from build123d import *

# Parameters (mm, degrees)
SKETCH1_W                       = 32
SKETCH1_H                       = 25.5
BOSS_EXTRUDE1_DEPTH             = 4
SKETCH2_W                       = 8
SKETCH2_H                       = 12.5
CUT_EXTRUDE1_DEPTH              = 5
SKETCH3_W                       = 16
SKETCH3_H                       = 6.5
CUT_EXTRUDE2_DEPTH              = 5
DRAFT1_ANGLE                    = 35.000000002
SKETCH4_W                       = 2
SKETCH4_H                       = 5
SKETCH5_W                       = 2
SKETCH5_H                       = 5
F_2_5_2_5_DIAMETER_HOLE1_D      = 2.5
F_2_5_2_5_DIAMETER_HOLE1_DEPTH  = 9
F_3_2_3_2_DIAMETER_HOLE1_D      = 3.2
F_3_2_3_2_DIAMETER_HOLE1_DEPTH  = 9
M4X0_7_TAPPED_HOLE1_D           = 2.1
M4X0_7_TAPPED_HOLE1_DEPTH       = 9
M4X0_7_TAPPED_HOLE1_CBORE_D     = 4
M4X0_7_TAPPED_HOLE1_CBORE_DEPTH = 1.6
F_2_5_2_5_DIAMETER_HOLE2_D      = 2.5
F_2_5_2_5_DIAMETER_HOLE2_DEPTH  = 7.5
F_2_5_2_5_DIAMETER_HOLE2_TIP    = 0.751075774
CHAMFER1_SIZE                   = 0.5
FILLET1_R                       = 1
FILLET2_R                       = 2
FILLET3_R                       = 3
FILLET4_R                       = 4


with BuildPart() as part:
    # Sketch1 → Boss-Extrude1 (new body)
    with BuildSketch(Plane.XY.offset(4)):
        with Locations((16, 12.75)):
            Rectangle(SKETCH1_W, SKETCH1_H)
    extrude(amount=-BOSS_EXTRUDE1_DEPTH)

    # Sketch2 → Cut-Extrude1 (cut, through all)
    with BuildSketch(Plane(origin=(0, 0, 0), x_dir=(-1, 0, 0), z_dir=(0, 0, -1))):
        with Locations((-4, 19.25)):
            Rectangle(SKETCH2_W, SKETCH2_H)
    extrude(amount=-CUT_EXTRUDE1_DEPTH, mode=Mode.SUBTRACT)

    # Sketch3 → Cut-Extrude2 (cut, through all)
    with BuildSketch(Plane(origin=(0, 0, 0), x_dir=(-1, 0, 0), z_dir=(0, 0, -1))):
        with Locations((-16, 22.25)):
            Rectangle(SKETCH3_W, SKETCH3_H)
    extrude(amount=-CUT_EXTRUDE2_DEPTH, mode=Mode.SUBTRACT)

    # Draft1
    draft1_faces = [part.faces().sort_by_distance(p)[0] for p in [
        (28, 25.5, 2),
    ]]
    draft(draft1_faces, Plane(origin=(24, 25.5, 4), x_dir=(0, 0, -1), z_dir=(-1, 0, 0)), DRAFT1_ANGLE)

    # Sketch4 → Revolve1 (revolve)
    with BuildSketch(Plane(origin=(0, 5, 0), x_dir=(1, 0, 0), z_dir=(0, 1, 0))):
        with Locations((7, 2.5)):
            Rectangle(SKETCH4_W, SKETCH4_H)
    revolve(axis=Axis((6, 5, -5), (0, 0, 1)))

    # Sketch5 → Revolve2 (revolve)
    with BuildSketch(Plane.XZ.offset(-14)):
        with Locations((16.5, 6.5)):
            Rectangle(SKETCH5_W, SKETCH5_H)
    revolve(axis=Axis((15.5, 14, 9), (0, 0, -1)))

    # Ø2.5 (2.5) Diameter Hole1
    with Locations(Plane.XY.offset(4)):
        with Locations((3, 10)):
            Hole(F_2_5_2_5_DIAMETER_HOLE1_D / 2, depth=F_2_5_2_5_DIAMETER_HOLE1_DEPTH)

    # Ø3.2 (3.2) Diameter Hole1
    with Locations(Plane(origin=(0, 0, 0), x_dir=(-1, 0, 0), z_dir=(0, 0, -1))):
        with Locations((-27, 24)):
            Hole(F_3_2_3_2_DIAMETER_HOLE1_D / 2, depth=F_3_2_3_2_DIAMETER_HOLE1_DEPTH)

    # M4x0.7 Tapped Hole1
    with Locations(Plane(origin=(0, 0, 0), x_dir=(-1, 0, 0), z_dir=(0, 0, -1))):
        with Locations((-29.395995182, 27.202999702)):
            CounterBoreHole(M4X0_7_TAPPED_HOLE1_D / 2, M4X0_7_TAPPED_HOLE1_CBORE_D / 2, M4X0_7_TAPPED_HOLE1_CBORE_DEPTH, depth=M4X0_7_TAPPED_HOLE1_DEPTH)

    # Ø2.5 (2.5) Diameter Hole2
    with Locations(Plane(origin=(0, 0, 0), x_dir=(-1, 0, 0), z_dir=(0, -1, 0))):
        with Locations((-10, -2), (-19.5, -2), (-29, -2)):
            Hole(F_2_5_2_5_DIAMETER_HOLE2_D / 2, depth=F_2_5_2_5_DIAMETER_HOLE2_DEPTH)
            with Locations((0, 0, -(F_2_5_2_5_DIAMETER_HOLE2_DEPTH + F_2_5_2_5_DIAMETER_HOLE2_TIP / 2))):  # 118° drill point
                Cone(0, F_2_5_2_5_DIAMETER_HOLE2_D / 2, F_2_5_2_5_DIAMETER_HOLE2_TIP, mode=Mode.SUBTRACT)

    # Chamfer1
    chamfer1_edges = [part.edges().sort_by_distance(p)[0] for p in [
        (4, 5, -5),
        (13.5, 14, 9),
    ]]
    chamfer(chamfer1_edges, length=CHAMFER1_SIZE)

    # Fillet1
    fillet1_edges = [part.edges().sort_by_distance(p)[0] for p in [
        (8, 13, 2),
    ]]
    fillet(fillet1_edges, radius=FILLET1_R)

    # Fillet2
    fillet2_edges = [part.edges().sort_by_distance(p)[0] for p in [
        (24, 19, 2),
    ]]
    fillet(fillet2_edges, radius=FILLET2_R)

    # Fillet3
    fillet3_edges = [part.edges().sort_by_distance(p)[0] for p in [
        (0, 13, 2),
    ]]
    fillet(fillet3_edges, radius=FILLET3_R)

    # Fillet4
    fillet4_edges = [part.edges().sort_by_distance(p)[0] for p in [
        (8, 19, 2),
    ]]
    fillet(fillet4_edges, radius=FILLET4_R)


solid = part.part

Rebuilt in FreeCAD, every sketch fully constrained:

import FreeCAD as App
import Part
import Sketcher
from FreeCAD import Vector


def edges_at(feature, points):
    """Names of the edges that pass closest to the given points."""
    edges = feature.Shape.Edges
    near = lambda p: min(range(len(edges)), key=lambda i: edges[i].distToShape(Part.Vertex(*p))[0])
    return sorted({f"Edge{near(p) + 1}" for p in points})


def faces_at(feature, points):
    """Names of the faces that lie closest to the given points."""
    faces = feature.Shape.Faces
    near = lambda p: min(range(len(faces)), key=lambda i: faces[i].distToShape(Part.Vertex(*p))[0])
    return sorted({f"Face{near(p) + 1}" for p in points})

doc = App.newDocument("Part")
body = doc.addObject("PartDesign::Body", "Body")

# Sketch on XY plane
sketch1 = body.newObject("Sketcher::SketchObject", "Sketch")
sketch1.AttachmentSupport = (doc.getObject("XY_Plane"), [""])
sketch1.MapMode = "FlatFace"
sketch1.AttachmentOffset = App.Placement(Vector(0, 0, 4), App.Rotation())
sketch1.addGeometry([
    Part.LineSegment(Vector(0, 25.5, 0), Vector(0, 0, 0)),
    Part.LineSegment(Vector(0, 0, 0), Vector(32, 0, 0)),
    Part.LineSegment(Vector(32, 0, 0), Vector(32, 25.5, 0)),
    Part.LineSegment(Vector(32, 25.5, 0), Vector(0, 25.5, 0)),
], False)
sketch1.addConstraint([
    Sketcher.Constraint("Coincident", 0, 2, 1, 1),
    Sketcher.Constraint("Coincident", 1, 2, 2, 1),
    Sketcher.Constraint("Coincident", 2, 2, 3, 1),
    Sketcher.Constraint("Coincident", 3, 2, 0, 1),
    Sketcher.Constraint("Vertical", 0),
    Sketcher.Constraint("Horizontal", 1),
    Sketcher.Constraint("Vertical", 2),
    Sketcher.Constraint("Horizontal", 3),
    Sketcher.Constraint("Coincident", 0, 2, -1, 1),
    Sketcher.Constraint("DistanceX", 1, 1, 1, 2, 32.0),
    Sketcher.Constraint("DistanceY", 0, 2, 0, 1, 25.5),
])
pad1 = body.newObject("PartDesign::Pad", "Pad")
pad1.Profile = sketch1
pad1.Length = 4
pad1.Reversed = True

# Sketch on XY plane
sketch2 = body.newObject("Sketcher::SketchObject", "Sketch001")
sketch2.AttachmentSupport = (doc.getObject("XY_Plane"), [""])
sketch2.MapMode = "FlatFace"
sketch2.addGeometry([
    Part.LineSegment(Vector(8, 25.5, 0), Vector(8, 13, 0)),
    Part.LineSegment(Vector(8, 13, 0), Vector(0, 13, 0)),
    Part.LineSegment(Vector(0, 13, 0), Vector(0, 25.5, 0)),
    Part.LineSegment(Vector(0, 25.5, 0), Vector(8, 25.5, 0)),
], False)
sketch2.addConstraint([
    Sketcher.Constraint("Coincident", 0, 2, 1, 1),
    Sketcher.Constraint("Coincident", 1, 2, 2, 1),
    Sketcher.Constraint("Coincident", 2, 2, 3, 1),
    Sketcher.Constraint("Coincident", 3, 2, 0, 1),
    Sketcher.Constraint("Vertical", 0),
    Sketcher.Constraint("Horizontal", 1),
    Sketcher.Constraint("Vertical", 2),
    Sketcher.Constraint("Horizontal", 3),
    Sketcher.Constraint("PointOnObject", 1, 2, -2),
    Sketcher.Constraint("DistanceX", 1, 2, 1, 1, 8.0),
    Sketcher.Constraint("DistanceY", 0, 2, 0, 1, 12.5),
    Sketcher.Constraint("DistanceY", -1, 1, 0, 2, 13.0),
])
pocket1 = body.newObject("PartDesign::Pocket", "Pocket")
pocket1.Profile = sketch2
pocket1.Type = "ThroughAll"
pocket1.Reversed = True

# Sketch on XY plane
sketch3 = body.newObject("Sketcher::SketchObject", "Sketch002")
sketch3.AttachmentSupport = (doc.getObject("XY_Plane"), [""])
sketch3.MapMode = "FlatFace"
sketch3.addGeometry([
    Part.LineSegment(Vector(24, 25.5, 0), Vector(24, 19, 0)),
    Part.LineSegment(Vector(24, 19, 0), Vector(8, 19, 0)),
    Part.LineSegment(Vector(8, 19, 0), Vector(8, 25.5, 0)),
    Part.LineSegment(Vector(8, 25.5, 0), Vector(24, 25.5, 0)),
], False)
sketch3.addConstraint([
    Sketcher.Constraint("Coincident", 0, 2, 1, 1),
    Sketcher.Constraint("Coincident", 1, 2, 2, 1),
    Sketcher.Constraint("Coincident", 2, 2, 3, 1),
    Sketcher.Constraint("Coincident", 3, 2, 0, 1),
    Sketcher.Constraint("Vertical", 0),
    Sketcher.Constraint("Horizontal", 1),
    Sketcher.Constraint("Vertical", 2),
    Sketcher.Constraint("Horizontal", 3),
    Sketcher.Constraint("DistanceX", 1, 2, 1, 1, 16.0),
    Sketcher.Constraint("DistanceY", 0, 2, 0, 1, 6.5),
    Sketcher.Constraint("DistanceX", -1, 1, 0, 2, 24.0),
    Sketcher.Constraint("DistanceY", -1, 1, 0, 2, 19.0),
])
pocket2 = body.newObject("PartDesign::Pocket", "Pocket001")
pocket2.Profile = sketch3
pocket2.Type = "ThroughAll"
pocket2.Reversed = True
doc.recompute()

datumplane = body.newObject("PartDesign::Plane", "DatumPlane")
datumplane.AttachmentSupport = (doc.getObject("YZ_Plane"), [""])
datumplane.MapMode = "FlatFace"
datumplane.AttachmentOffset = App.Placement(Vector(0, 0, 24), App.Rotation())
draft = body.newObject("PartDesign::Draft", "Draft")
draft.Base = (pocket2, faces_at(pocket2, [(28, 25.5, 2)]))
draft.NeutralPlane = (datumplane, [""])
draft.Angle = 35
draft.Reversed = True

# Sketch on XZ plane
sketch4 = body.newObject("Sketcher::SketchObject", "Sketch003")
sketch4.AttachmentSupport = (doc.getObject("XZ_Plane"), [""])
sketch4.MapMode = "FlatFace"
sketch4.AttachmentOffset = App.Placement(Vector(0, 0, -5), App.Rotation())
sketch4.addGeometry([
    Part.LineSegment(Vector(6, -5, 0), Vector(6, 0, 0)),
    Part.LineSegment(Vector(6, 0, 0), Vector(8, 0, 0)),
    Part.LineSegment(Vector(8, 0, 0), Vector(8, -5, 0)),
    Part.LineSegment(Vector(8, -5, 0), Vector(6, -5, 0)),
], False)
sketch4.addGeometry(Part.LineSegment(Vector(6, -5, 0), Vector(6, 0, 0)), True)  # axis
sketch4.addConstraint([
    Sketcher.Constraint("Coincident", 0, 2, 1, 1),
    Sketcher.Constraint("Coincident", 1, 2, 2, 1),
    Sketcher.Constraint("Coincident", 2, 2, 3, 1),
    Sketcher.Constraint("Coincident", 3, 2, 0, 1),
    Sketcher.Constraint("Vertical", 0),
    Sketcher.Constraint("Horizontal", 1),
    Sketcher.Constraint("Vertical", 2),
    Sketcher.Constraint("Horizontal", 3),
    Sketcher.Constraint("Vertical", 4),
    Sketcher.Constraint("Coincident", 4, 1, 3, 2),
    Sketcher.Constraint("PointOnObject", 0, 2, -1),
    Sketcher.Constraint("PointOnObject", 4, 2, -1),
    Sketcher.Constraint("DistanceX", 1, 1, 1, 2, 2.0),
    Sketcher.Constraint("DistanceY", 0, 1, 0, 2, 5.0),
    Sketcher.Constraint("DistanceX", -1, 1, 0, 2, 6.0),
])
revolution = body.newObject("PartDesign::Revolution", "Revolution")
revolution.Profile = sketch4
revolution.ReferenceAxis = (sketch4, ["Axis0"])
revolution.Angle = 360

# Sketch on XZ plane
sketch5 = body.newObject("Sketcher::SketchObject", "Sketch004")
sketch5.AttachmentSupport = (doc.getObject("XZ_Plane"), [""])
sketch5.MapMode = "FlatFace"
sketch5.AttachmentOffset = App.Placement(Vector(0, 0, -14), App.Rotation())
sketch5.addGeometry([
    Part.LineSegment(Vector(15.5, 9, 0), Vector(15.5, 4, 0)),
    Part.LineSegment(Vector(15.5, 4, 0), Vector(17.5, 4, 0)),
    Part.LineSegment(Vector(17.5, 4, 0), Vector(17.5, 9, 0)),
    Part.LineSegment(Vector(17.5, 9, 0), Vector(15.5, 9, 0)),
], False)
sketch5.addGeometry(Part.LineSegment(Vector(15.5, 9, 0), Vector(15.5, 4, 0)), True)  # axis
sketch5.addConstraint([
    Sketcher.Constraint("Coincident", 0, 2, 1, 1),
    Sketcher.Constraint("Coincident", 1, 2, 2, 1),
    Sketcher.Constraint("Coincident", 2, 2, 3, 1),
    Sketcher.Constraint("Coincident", 3, 2, 0, 1),
    Sketcher.Constraint("Vertical", 0),
    Sketcher.Constraint("Horizontal", 1),
    Sketcher.Constraint("Vertical", 2),
    Sketcher.Constraint("Horizontal", 3),
    Sketcher.Constraint("Vertical", 4),
    Sketcher.Constraint("Coincident", 4, 1, 3, 2),
    Sketcher.Constraint("Horizontal", 1, 2, 4, 2),
    Sketcher.Constraint("DistanceX", 1, 1, 1, 2, 2.0),
    Sketcher.Constraint("DistanceY", 0, 2, 0, 1, 5.0),
    Sketcher.Constraint("DistanceY", -1, 1, 0, 2, 4.0),
    Sketcher.Constraint("DistanceX", -1, 1, 0, 2, 15.5),
])
revolution2 = body.newObject("PartDesign::Revolution", "Revolution001")
revolution2.Profile = sketch5
revolution2.ReferenceAxis = (sketch5, ["Axis0"])
revolution2.Angle = 360

# Sketch on XY plane
sketch6 = body.newObject("Sketcher::SketchObject", "Sketch005")
sketch6.AttachmentSupport = (doc.getObject("XY_Plane"), [""])
sketch6.MapMode = "FlatFace"
sketch6.AttachmentOffset = App.Placement(Vector(0, 0, 4), App.Rotation())
sketch6.addGeometry(Part.Circle(Vector(3, 10, 0), Vector(0, 0, 1), 1.25), False)
sketch6.addConstraint([
    Sketcher.Constraint("Diameter", 0, 2.5),
    Sketcher.Constraint("DistanceX", -1, 1, 0, 3, 3.0),
    Sketcher.Constraint("DistanceY", -1, 1, 0, 3, 10.0),
])
doc.recompute()
hole = body.newObject("PartDesign::Hole", "Hole")
hole.Profile = sketch6
hole.ThreadType = "None"
hole.Diameter = 2.5
hole.DepthType = "Dimension"
hole.Depth = 9
hole.DrillPoint = "Flat"

# Sketch on XY plane
sketch7 = body.newObject("Sketcher::SketchObject", "Sketch006")
sketch7.AttachmentSupport = (doc.getObject("XY_Plane"), [""])
sketch7.MapMode = "FlatFace"
sketch7.addGeometry(Part.Circle(Vector(27, 24, 0), Vector(0, 0, 1), 1.6), False)
sketch7.addConstraint([
    Sketcher.Constraint("Diameter", 0, 3.2),
    Sketcher.Constraint("DistanceX", -1, 1, 0, 3, 27.0),
    Sketcher.Constraint("DistanceY", -1, 1, 0, 3, 24.0),
])
doc.recompute()
hole2 = body.newObject("PartDesign::Hole", "Hole001")
hole2.Profile = sketch7
hole2.ThreadType = "None"
hole2.Diameter = 3.2
hole2.DepthType = "Dimension"
hole2.Depth = 9
hole2.DrillPoint = "Flat"
hole2.Reversed = True

# Sketch on XY plane
sketch8 = body.newObject("Sketcher::SketchObject", "Sketch007")
sketch8.AttachmentSupport = (doc.getObject("XY_Plane"), [""])
sketch8.MapMode = "FlatFace"
sketch8.addGeometry(Part.Circle(Vector(29.395995, 27.203, 0), Vector(0, 0, 1), 1.05), False)
sketch8.addConstraint([
    Sketcher.Constraint("Diameter", 0, 2.1),
    Sketcher.Constraint("DistanceY", -1, 1, 0, 3, 27.203),
    Sketcher.Constraint("DistanceX", -1, 1, 0, 3, 29.395995),
])
doc.recompute()
hole3 = body.newObject("PartDesign::Hole", "Hole002")
hole3.Profile = sketch8
hole3.ThreadType = "None"
hole3.Diameter = 2.1
hole3.DepthType = "Dimension"
hole3.Depth = 9
hole3.DrillPoint = "Flat"
hole3.HoleCutType = "Counterbore"
hole3.HoleCutDiameter = 4
hole3.HoleCutDepth = 1.6
hole3.Reversed = True

# Sketch on XZ plane
sketch9 = body.newObject("Sketcher::SketchObject", "Sketch008")
sketch9.AttachmentSupport = (doc.getObject("XZ_Plane"), [""])
sketch9.MapMode = "FlatFace"
sketch9.addGeometry([
    Part.Circle(Vector(10, 2, 0), Vector(0, 0, 1), 1.25),
    Part.Circle(Vector(19.5, 2, 0), Vector(0, 0, 1), 1.25),
    Part.Circle(Vector(29, 2, 0), Vector(0, 0, 1), 1.25),
], False)
sketch9.addConstraint([
    Sketcher.Constraint("Equal", 0, 1),
    Sketcher.Constraint("Equal", 1, 2),
    Sketcher.Constraint("Horizontal", 0, 3, 1, 3),
    Sketcher.Constraint("Horizontal", 1, 3, 2, 3),
    Sketcher.Constraint("Diameter", 0, 2.5),
    Sketcher.Constraint("DistanceX", -1, 1, 0, 3, 10.0),
    Sketcher.Constraint("DistanceY", -1, 1, 0, 3, 2.0),
    Sketcher.Constraint("DistanceX", -1, 1, 2, 3, 29.0),
    Sketcher.Constraint("DistanceX", -1, 1, 1, 3, 19.5),
])
doc.recompute()
hole4 = body.newObject("PartDesign::Hole", "Hole003")
hole4.Profile = sketch9
hole4.ThreadType = "None"
hole4.Diameter = 2.5
hole4.DepthType = "Dimension"
hole4.Depth = 7.5
hole4.DrillPoint = "Angled"
hole4.DrillPointAngle = 118
doc.recompute()

chamfer = body.newObject("PartDesign::Chamfer", "Chamfer")
chamfer.Base = (hole4, edges_at(hole4, [(4, 5, -5), (13.5, 14, 9)]))
chamfer.Size = 0.5
doc.recompute()

fillet = body.newObject("PartDesign::Fillet", "Fillet")
fillet.Base = (chamfer, edges_at(chamfer, [(8, 13, 2)]))
fillet.Radius = 1
doc.recompute()

fillet2 = body.newObject("PartDesign::Fillet", "Fillet001")
fillet2.Base = (fillet, edges_at(fillet, [(24, 19, 2)]))
fillet2.Radius = 2
doc.recompute()

fillet3 = body.newObject("PartDesign::Fillet", "Fillet002")
fillet3.Base = (fillet2, edges_at(fillet2, [(0, 13, 2)]))
fillet3.Radius = 3
doc.recompute()

fillet4 = body.newObject("PartDesign::Fillet", "Fillet003")
fillet4.Base = (fillet3, edges_at(fillet3, [(8, 19, 2)]))
fillet4.Radius = 4

doc.recompute()
